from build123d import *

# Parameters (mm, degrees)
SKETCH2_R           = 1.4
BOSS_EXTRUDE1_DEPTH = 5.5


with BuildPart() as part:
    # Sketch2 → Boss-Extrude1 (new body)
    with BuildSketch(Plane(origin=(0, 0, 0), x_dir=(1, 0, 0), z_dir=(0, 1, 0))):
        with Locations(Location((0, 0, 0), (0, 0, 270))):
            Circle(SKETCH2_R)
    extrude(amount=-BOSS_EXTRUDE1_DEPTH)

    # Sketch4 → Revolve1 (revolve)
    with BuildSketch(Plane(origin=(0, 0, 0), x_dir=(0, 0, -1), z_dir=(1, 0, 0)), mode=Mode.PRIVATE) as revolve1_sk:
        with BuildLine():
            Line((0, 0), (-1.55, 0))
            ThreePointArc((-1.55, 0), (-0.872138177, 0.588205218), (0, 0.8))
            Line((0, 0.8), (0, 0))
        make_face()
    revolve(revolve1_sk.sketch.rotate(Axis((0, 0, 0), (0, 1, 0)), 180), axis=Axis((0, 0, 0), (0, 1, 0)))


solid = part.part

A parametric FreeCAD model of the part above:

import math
import FreeCAD as App
import Part
import Sketcher

V = App.Vector
Q = App.Units.Quantity

doc = App.newDocument("Part")
params = doc.addObject("Spreadsheet::Sheet", "Params")
for row, (alias, value) in enumerate([
    ("sketch1_diameter", "2.8 mm"),
    ("pad1_length", "5.5 mm"),
    ("sketch2_width", "0.8 mm"),
    ("sketch2_height", "1.55 mm"),
    ("revolution_angle", "360 deg"),
], start=1):
    params.set(f"A{row}", alias)
    params.set(f"B{row}", "=" + value)
    params.setAlias(f"B{row}", alias)

body = doc.addObject("PartDesign::Body", "Body")

sketch1 = doc.addObject("Sketcher::SketchObject", "Sketch")
body.addObject(sketch1)
sketch1.AttachmentSupport = (doc.XZ_Plane, [""])
sketch1.MapMode = "FlatFace"
sketch1.addGeometry(Part.Circle(V(0, 0, 0), V(0, 0, 1), 1.4), False)
sketch1.addConstraint([
    Sketcher.Constraint("Coincident", 0, 3, -1, 1),
    Sketcher.Constraint("Diameter", 0, Q("2.8 mm")),
])
sketch1.setExpression("Constraints[1]", "Params.sketch1_diameter")
pad1 = doc.addObject("PartDesign::Pad", "Pad")
body.addObject(pad1)
pad1.Profile = sketch1
pad1.setExpression("Length", "Params.pad1_length")

sketch2 = doc.addObject("Sketcher::SketchObject", "Sketch001")
body.addObject(sketch2)
sketch2.AttachmentSupport = (doc.YZ_Plane, [""])
sketch2.MapMode = "FlatFace"
sketch2.addGeometry([
    Part.LineSegment(V(0, 1.6, 0), V(0, 0, 0)),
    Part.LineSegment(V(0, 0, 0), V(0.8, 0, 0)),
    Part.ArcOfCircle(Part.Circle(V(-1.1, 0, 0), V(0, 0, 1), 1.9), math.radians(0), math.radians(55)),
], False)
sketch2.addConstraint([
    Sketcher.Constraint("Coincident", 0, 2, 1, 1),
    Sketcher.Constraint("Coincident", 1, 2, 2, 1),
    Sketcher.Constraint("Coincident", 2, 2, 0, 1),
    Sketcher.Constraint("Vertical", 0),
    Sketcher.Constraint("Horizontal", 1),
    Sketcher.Constraint("Coincident", 0, 2, -1, 1),
    Sketcher.Constraint("PointOnObject", 2, 3, -1),
    Sketcher.Constraint("DistanceX", 1, 1, 1, 2, Q("0.8 mm")),
    Sketcher.Constraint("DistanceY", 0, 2, 0, 1, Q("1.55 mm")),
])
sketch2.setExpression("Constraints[7]", "Params.sketch2_width")
sketch2.setExpression("Constraints[8]", "Params.sketch2_height")
revolution = doc.addObject("PartDesign::Revolution", "Revolution")
body.addObject(revolution)
revolution.Profile = sketch2
revolution.ReferenceAxis = (sketch2, ["H_Axis"])
revolution.setExpression("Angle", "Params.revolution_angle")

doc.recompute()
